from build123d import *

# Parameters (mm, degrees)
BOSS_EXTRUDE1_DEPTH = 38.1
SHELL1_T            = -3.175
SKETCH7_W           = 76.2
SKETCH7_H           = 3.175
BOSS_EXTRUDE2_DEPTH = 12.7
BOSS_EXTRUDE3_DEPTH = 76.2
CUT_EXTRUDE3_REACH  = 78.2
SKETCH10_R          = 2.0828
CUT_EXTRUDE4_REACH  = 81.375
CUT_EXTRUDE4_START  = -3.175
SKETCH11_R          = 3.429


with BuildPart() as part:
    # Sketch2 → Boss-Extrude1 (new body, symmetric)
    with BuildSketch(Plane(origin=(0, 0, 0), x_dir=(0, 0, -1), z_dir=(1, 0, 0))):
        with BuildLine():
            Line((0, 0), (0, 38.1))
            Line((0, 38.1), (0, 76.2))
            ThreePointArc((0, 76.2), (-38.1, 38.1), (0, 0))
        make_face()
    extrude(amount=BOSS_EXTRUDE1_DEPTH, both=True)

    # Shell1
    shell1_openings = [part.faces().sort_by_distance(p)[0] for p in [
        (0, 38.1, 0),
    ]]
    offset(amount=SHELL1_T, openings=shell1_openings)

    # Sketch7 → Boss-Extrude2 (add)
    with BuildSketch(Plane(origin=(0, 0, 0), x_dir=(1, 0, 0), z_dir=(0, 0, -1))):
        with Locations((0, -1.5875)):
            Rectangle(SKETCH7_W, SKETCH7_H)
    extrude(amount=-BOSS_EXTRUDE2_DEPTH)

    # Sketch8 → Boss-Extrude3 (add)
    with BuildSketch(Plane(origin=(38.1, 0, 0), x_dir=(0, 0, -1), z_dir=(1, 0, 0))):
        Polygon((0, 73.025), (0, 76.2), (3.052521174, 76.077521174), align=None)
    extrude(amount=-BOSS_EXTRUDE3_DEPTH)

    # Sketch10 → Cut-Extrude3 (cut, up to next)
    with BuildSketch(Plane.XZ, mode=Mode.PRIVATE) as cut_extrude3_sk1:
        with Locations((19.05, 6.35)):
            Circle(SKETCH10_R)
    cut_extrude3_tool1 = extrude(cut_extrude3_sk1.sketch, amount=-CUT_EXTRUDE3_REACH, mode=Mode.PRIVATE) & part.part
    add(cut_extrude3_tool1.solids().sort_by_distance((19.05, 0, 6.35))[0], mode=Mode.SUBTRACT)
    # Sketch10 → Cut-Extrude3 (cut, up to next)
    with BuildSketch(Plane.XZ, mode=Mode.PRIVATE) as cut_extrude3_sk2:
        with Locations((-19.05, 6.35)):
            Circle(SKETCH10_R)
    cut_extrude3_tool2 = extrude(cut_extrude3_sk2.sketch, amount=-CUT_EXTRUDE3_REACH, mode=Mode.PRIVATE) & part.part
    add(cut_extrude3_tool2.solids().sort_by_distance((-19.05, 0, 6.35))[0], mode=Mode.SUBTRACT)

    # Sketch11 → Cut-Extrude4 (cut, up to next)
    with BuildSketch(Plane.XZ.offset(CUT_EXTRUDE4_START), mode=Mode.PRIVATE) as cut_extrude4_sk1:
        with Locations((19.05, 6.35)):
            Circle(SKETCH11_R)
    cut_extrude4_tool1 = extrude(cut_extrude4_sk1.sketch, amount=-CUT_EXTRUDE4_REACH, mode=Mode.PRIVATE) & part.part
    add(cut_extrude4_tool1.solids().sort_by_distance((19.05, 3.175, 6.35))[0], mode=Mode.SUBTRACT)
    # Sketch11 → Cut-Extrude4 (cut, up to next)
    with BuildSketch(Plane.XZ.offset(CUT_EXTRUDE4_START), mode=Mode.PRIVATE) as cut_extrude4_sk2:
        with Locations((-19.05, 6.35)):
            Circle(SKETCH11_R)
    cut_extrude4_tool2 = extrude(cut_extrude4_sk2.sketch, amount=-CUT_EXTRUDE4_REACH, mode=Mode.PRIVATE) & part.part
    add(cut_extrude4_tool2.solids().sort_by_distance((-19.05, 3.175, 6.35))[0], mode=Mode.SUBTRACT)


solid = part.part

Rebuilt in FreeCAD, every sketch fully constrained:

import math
import FreeCAD as App
import Part
import Sketcher
from FreeCAD import Vector
Q = App.Units.Quantity


def faces_at(feature, points):
    """Names of the faces that lie closest to the given points."""
    faces = feature.Shape.Faces
    near = lambda p: min(range(len(faces)), key=lambda i: faces[i].distToShape(Part.Vertex(*p))[0])
    return sorted({f"Face{near(p) + 1}" for p in points})

doc = App.newDocument("Part")
body = doc.addObject("PartDesign::Body", "Body")

# Sketch on YZ plane
sketch1 = doc.addObject("Sketcher::SketchObject", "Sketch")
body.addObject(sketch1)
sketch1.AttachmentSupport = (doc.YZ_Plane, [""])
sketch1.MapMode = "FlatFace"
sketch1.addGeometry([
    Part.LineSegment(Vector(0, 0, 0), Vector(76, 0, 0)),
    Part.ArcOfCircle(Part.Circle(Vector(38, 0, 0), Vector(0, 0, 1), 38), math.radians(0), math.radians(180)),
], False)
sketch1.addConstraint([
    Sketcher.Constraint("Coincident", 0, 1, 1, 2),
    Sketcher.Constraint("Coincident", 1, 1, 0, 2),
    Sketcher.Constraint("Horizontal", 0),
    Sketcher.Constraint("Coincident", 0, 1, -1, 1),
    Sketcher.Constraint("PointOnObject", 1, 3, -1),
    Sketcher.Constraint("Radius", 1, Q("1.5 in")),
])
pad1 = doc.addObject("PartDesign::Pad", "Pad")
body.addObject(pad1)
pad1.Profile = sketch1
pad1.Length = Q("3 in")
pad1.Midplane = True
doc.recompute()

thickness = doc.addObject("PartDesign::Thickness", "Thickness")
body.addObject(thickness)
thickness.Base = (pad1, faces_at(pad1, [(0, 38.1, 0)]))
thickness.Value = Q("0.125 in")
thickness.Reversed = True
thickness.Join = "Arc"

# Sketch on XY plane
sketch2 = doc.addObject("Sketcher::SketchObject", "Sketch001")
body.addObject(sketch2)
sketch2.AttachmentSupport = (doc.XY_Plane, [""])
sketch2.MapMode = "FlatFace"
sketch2.addGeometry([
    Part.LineSegment(Vector(-38.1, 0, 0), Vector(-38.1, 3.2, 0)),
    Part.LineSegment(Vector(-38.1, 3.2, 0), Vector(38.1, 3.2, 0)),
    Part.LineSegment(Vector(38.1, 3.2, 0), Vector(38.1, 0, 0)),
    Part.LineSegment(Vector(38.1, 0, 0), Vector(-38.1, 0, 0)),
], False)
sketch2.addConstraint([
    Sketcher.Constraint("Coincident", 0, 2, 1, 1),
    Sketcher.Constraint("Coincident", 1, 2, 2, 1),
    Sketcher.Constraint("Coincident", 2, 2, 3, 1),
    Sketcher.Constraint("Coincident", 3, 2, 0, 1),
    Sketcher.Constraint("Vertical", 0),
    Sketcher.Constraint("Horizontal", 1),
    Sketcher.Constraint("Vertical", 2),
    Sketcher.Constraint("Horizontal", 3),
    Sketcher.Constraint("Symmetric", 2, 2, 3, 2, -1, 1),
    Sketcher.Constraint("DistanceX", 1, 1, 1, 2, Q("3 in")),
    Sketcher.Constraint("DistanceY", 0, 1, 0, 2, Q("0.125 in")),
])
pad2 = doc.addObject("PartDesign::Pad", "Pad001")
body.addObject(pad2)
pad2.Profile = sketch2
pad2.Length = Q("0.5 in")

# Sketch on YZ plane
sketch3 = doc.addObject("Sketcher::SketchObject", "Sketch002")
body.addObject(sketch3)
sketch3.AttachmentSupport = (doc.YZ_Plane, [""])
sketch3.MapMode = "FlatFace"
sketch3.AttachmentOffset = App.Placement(Vector(0, 0, 1.5 * 25.4), App.Rotation())
sketch3.addGeometry([
    Part.LineSegment(Vector(76.2, 0, 0), Vector(73, 0, 0)),
    Part.LineSegment(Vector(73, 0, 0), Vector(76.1, -3.1, 0)),
    Part.LineSegment(Vector(76.1, -3.1, 0), Vector(76.2, 0, 0)),
], False)
sketch3.addConstraint([
    Sketcher.Constraint("Coincident", 0, 2, 1, 1),
    Sketcher.Constraint("Coincident", 1, 2, 2, 1),
    Sketcher.Constraint("Coincident", 2, 2, 0, 1),
    Sketcher.Constraint("Horizontal", 0),
    Sketcher.Constraint("PointOnObject", 0, 2, -1),
    Sketcher.Constraint("DistanceX", -1, 1, 2, 2, Q("3 in")),
    Sketcher.Constraint("Angle", 1, Q("-45 deg")),
    Sketcher.Constraint("DistanceX", 0, 2, 0, 1, Q("0.125 in")),
    Sketcher.Constraint("DistanceX", -1, 1, 1, 2, 76.077521),
])
pad3 = doc.addObject("PartDesign::Pad", "Pad002")
body.addObject(pad3)
pad3.Profile = sketch3
pad3.Length = Q("3 in")
pad3.Reversed = True

# Sketch on XZ plane
sketch4 = doc.addObject("Sketcher::SketchObject", "Sketch003")
body.addObject(sketch4)
sketch4.AttachmentSupport = (doc.XZ_Plane, [""])
sketch4.MapMode = "FlatFace"
sketch4.addGeometry(Part.Circle(Vector(19.1, 6.3, 0), Vector(0, 0, 1), 2.1), False)
sketch4.addConstraint([
    Sketcher.Constraint("Diameter", 0, Q("0.164 in")),
    Sketcher.Constraint("DistanceX", -1, 1, 0, 3, Q("0.75 in")),
    Sketcher.Constraint("DistanceY", -1, 1, 0, 3, Q("0.25 in")),
])
pocket1 = doc.addObject("PartDesign::Pocket", "Pocket")
body.addObject(pocket1)
pocket1.Profile = sketch4
pocket1.Type = "UpToFirst"

# Sketch on XZ plane
sketch5 = doc.addObject("Sketcher::SketchObject", "Sketch004")
body.addObject(sketch5)
sketch5.AttachmentSupport = (doc.XZ_Plane, [""])
sketch5.MapMode = "FlatFace"
sketch5.addGeometry(Part.Circle(Vector(-19.1, 6.3, 0), Vector(0, 0, 1), 2.1), False)
sketch5.addConstraint([
    Sketcher.Constraint("Diameter", 0, Q("0.164 in")),
    Sketcher.Constraint("DistanceX", 0, 3, -1, 1, Q("0.75 in")),
    Sketcher.Constraint("DistanceY", -1, 1, 0, 3, Q("0.25 in")),
])
pocket2 = doc.addObject("PartDesign::Pocket", "Pocket001")
body.addObject(pocket2)
pocket2.Profile = sketch5
pocket2.Type = "UpToFirst"

# Sketch on XZ plane
sketch6 = doc.addObject("Sketcher::SketchObject", "Sketch005")
body.addObject(sketch6)
sketch6.AttachmentSupport = (doc.XZ_Plane, [""])
sketch6.MapMode = "FlatFace"
sketch6.AttachmentOffset = App.Placement(Vector(0, 0, -0.125 * 25.4), App.Rotation())
sketch6.addGeometry(Part.Circle(Vector(19.1, 6.3, 0), Vector(0, 0, 1), 3.4), False)
sketch6.addConstraint([
    Sketcher.Constraint("Diameter", 0, Q("0.27 in")),
    Sketcher.Constraint("DistanceX", -1, 1, 0, 3, Q("0.75 in")),
    Sketcher.Constraint("DistanceY", -1, 1, 0, 3, Q("0.25 in")),
])
pocket3 = doc.addObject("PartDesign::Pocket", "Pocket002")
body.addObject(pocket3)
pocket3.Profile = sketch6
pocket3.Type = "UpToFirst"

# Sketch on XZ plane
sketch7 = doc.addObject("Sketcher::SketchObject", "Sketch006")
body.addObject(sketch7)
sketch7.AttachmentSupport = (doc.XZ_Plane, [""])
sketch7.MapMode = "FlatFace"
sketch7.AttachmentOffset = App.Placement(Vector(0, 0, -0.125 * 25.4), App.Rotation())
sketch7.addGeometry(Part.Circle(Vector(-19.1, 6.3, 0), Vector(0, 0, 1), 3.4), False)
sketch7.addConstraint([
    Sketcher.Constraint("Diameter", 0, Q("0.27 in")),
    Sketcher.Constraint("DistanceX", 0, 3, -1, 1, Q("0.75 in")),
    Sketcher.Constraint("DistanceY", -1, 1, 0, 3, Q("0.25 in")),
])
pocket4 = doc.addObject("PartDesign::Pocket", "Pocket003")
body.addObject(pocket4)
pocket4.Profile = sketch7
pocket4.Type = "UpToFirst"

doc.recompute()
